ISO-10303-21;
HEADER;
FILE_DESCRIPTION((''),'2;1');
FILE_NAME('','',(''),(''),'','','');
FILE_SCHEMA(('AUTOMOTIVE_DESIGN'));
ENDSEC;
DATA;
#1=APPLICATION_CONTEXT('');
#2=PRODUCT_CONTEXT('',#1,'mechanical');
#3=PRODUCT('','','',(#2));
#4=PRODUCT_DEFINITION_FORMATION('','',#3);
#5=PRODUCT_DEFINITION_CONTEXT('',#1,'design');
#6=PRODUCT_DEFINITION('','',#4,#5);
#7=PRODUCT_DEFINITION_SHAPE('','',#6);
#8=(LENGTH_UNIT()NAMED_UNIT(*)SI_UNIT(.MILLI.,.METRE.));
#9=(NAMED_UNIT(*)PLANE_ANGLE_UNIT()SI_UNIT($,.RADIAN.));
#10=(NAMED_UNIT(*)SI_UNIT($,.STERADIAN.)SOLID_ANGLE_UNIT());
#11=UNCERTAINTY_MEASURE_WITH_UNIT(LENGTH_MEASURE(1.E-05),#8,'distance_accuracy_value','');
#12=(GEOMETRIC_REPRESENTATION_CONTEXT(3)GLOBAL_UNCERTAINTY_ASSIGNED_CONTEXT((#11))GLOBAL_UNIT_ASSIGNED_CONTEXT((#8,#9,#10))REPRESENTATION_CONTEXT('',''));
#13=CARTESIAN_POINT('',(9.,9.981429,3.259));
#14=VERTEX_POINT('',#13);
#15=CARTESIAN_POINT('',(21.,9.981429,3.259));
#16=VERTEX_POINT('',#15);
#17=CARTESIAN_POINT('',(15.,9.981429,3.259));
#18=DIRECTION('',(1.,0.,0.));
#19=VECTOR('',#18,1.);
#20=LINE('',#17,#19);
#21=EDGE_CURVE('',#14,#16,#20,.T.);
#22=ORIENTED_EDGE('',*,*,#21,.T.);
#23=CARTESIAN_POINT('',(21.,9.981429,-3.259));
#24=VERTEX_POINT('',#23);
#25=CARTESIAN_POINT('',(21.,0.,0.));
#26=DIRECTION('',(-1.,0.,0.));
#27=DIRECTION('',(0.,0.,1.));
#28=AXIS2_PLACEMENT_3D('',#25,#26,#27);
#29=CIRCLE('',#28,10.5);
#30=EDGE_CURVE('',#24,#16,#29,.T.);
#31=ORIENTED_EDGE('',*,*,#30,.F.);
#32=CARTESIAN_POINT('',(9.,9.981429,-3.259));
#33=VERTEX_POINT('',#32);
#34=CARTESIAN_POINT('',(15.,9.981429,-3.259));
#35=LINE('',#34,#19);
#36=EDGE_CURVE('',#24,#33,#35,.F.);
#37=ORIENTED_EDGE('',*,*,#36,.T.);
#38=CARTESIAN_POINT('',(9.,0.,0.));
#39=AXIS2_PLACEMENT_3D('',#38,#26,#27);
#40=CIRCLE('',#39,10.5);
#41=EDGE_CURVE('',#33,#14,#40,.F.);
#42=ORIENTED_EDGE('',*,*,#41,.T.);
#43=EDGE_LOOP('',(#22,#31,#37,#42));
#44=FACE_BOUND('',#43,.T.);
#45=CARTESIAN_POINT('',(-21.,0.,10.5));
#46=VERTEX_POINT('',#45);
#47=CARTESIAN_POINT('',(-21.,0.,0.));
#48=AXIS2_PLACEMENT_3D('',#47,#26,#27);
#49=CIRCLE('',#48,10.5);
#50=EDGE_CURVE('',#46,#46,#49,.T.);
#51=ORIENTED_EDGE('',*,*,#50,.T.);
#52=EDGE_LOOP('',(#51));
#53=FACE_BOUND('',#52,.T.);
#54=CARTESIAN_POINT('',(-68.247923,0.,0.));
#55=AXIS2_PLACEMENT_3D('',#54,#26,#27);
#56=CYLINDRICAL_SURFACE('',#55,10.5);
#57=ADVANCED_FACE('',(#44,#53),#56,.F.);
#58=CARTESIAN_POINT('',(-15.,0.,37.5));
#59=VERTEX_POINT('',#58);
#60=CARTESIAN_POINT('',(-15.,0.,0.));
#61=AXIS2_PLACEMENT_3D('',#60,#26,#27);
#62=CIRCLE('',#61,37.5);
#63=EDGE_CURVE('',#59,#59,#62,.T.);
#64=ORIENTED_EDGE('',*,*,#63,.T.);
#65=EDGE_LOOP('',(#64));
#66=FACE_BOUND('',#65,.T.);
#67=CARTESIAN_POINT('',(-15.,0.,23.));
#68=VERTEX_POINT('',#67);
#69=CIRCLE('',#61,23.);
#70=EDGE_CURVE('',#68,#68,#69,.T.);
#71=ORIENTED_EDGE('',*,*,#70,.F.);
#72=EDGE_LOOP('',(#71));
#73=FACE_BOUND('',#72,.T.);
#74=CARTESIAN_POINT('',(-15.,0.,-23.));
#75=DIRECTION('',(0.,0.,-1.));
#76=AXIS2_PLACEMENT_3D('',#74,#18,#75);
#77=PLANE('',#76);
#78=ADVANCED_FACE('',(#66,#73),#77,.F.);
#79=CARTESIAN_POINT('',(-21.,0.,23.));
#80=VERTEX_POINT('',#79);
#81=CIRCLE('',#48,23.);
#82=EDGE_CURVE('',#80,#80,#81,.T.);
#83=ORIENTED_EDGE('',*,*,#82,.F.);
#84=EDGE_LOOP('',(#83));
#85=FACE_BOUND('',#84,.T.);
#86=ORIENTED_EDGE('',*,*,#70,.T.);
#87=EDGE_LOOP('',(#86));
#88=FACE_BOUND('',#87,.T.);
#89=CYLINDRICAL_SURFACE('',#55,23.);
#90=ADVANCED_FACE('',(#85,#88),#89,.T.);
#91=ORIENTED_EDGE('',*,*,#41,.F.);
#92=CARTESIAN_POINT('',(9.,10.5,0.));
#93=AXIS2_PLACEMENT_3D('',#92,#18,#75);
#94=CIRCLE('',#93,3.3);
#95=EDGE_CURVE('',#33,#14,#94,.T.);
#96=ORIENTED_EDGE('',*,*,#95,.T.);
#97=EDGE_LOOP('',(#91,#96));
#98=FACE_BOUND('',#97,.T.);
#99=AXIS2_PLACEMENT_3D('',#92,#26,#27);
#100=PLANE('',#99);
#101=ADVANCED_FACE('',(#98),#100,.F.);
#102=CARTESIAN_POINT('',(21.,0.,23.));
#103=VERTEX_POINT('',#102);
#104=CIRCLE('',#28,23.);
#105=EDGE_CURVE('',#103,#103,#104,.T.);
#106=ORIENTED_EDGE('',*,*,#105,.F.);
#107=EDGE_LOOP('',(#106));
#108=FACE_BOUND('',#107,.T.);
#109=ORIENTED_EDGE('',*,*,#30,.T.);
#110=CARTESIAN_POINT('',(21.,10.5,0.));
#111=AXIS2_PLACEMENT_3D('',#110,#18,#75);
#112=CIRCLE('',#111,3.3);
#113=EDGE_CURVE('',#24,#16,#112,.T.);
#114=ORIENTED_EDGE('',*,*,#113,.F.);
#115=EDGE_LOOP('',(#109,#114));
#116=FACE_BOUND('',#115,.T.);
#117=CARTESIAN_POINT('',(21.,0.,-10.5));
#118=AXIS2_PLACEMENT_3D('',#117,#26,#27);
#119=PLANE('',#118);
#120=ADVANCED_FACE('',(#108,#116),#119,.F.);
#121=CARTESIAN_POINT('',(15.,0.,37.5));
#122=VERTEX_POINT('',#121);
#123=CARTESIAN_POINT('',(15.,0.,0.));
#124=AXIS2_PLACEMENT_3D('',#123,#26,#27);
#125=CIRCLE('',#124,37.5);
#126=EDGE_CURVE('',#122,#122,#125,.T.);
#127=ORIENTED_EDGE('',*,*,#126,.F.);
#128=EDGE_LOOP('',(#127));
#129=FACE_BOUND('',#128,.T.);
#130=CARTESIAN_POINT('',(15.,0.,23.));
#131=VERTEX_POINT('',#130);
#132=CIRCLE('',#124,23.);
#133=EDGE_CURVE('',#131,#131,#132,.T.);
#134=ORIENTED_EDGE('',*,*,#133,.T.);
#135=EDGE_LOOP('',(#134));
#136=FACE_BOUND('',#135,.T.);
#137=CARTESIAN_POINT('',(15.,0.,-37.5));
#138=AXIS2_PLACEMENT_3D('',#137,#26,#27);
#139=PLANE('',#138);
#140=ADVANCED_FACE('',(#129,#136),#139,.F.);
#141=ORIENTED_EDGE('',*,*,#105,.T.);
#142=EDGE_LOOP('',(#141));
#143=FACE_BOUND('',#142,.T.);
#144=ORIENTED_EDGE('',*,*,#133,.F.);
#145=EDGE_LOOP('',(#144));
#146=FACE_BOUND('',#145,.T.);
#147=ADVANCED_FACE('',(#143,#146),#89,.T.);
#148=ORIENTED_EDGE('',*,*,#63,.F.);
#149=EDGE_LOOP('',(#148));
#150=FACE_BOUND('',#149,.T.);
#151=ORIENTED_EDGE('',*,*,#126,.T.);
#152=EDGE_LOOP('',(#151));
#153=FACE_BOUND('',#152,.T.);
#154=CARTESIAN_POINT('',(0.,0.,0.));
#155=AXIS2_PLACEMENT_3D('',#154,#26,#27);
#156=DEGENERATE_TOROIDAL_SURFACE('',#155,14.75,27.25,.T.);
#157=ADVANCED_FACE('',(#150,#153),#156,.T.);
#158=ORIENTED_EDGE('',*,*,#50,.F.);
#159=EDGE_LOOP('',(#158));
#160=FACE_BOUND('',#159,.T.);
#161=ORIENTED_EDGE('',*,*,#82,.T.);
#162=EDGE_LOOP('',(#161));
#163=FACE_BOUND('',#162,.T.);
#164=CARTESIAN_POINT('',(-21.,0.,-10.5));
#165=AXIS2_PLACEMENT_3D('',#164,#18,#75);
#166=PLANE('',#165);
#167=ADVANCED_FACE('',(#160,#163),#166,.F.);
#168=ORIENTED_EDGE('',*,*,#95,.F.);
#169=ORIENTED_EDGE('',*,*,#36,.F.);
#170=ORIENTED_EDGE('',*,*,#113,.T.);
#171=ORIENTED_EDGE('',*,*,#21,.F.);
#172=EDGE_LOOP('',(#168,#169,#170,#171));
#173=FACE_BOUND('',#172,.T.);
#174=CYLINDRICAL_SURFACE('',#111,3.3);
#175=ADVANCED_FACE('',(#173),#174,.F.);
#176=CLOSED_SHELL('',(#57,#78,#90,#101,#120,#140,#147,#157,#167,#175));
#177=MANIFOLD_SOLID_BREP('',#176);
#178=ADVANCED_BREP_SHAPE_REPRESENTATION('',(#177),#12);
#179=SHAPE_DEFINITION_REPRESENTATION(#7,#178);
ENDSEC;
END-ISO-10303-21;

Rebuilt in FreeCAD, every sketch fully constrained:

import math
import FreeCAD as App
import Part
import Sketcher

V = App.Vector

doc = App.newDocument("Part")
body = doc.addObject("PartDesign::Body", "Body")

# Sketch on XZ plane
sketch1 = body.newObject("Sketcher::SketchObject", "Sketch")
sketch1.AttachmentSupport = (doc.getObject("XZ_Plane"), [""])
sketch1.MapMode = "FlatFace"
sketch1.addGeometry([
    Part.LineSegment(V(-21, -10.5, 0), V(21, -10.5, 0)),  # 0
    Part.LineSegment(V(21, -10.5, 0), V(21, -23, 0)),  # 1
    Part.LineSegment(V(21, -23, 0), V(15, -23, 0)),  # 2
    Part.LineSegment(V(15, -23, 0), V(15, -37.5, 0)),  # 3
    Part.ArcOfCircle(Part.Circle(V(0, -14.75, 0), V(0, 0, 1), 27.25), math.radians(-123.398488), math.radians(-56.601512)),  # 4
    Part.LineSegment(V(-15, -37.5, 0), V(-15, -23, 0)),  # 5
    Part.LineSegment(V(-15, -23, 0), V(-21, -23, 0)),  # 6
    Part.LineSegment(V(-21, -23, 0), V(-21, -10.5, 0)),  # 7
], False)
sketch1.addConstraint([
    Sketcher.Constraint("Coincident", 0, 2, 1, 1),
    Sketcher.Constraint("Coincident", 1, 2, 2, 1),
    Sketcher.Constraint("Coincident", 2, 2, 3, 1),
    Sketcher.Constraint("Coincident", 3, 2, 4, 2),
    Sketcher.Constraint("Coincident", 4, 1, 5, 1),
    Sketcher.Constraint("Coincident", 5, 2, 6, 1),
    Sketcher.Constraint("Coincident", 6, 2, 7, 1),
    Sketcher.Constraint("Coincident", 7, 2, 0, 1),
    Sketcher.Constraint("Horizontal", 0),
    Sketcher.Constraint("Vertical", 1),
    Sketcher.Constraint("Horizontal", 2),
    Sketcher.Constraint("Vertical", 3),
    Sketcher.Constraint("Vertical", 5),
    Sketcher.Constraint("Horizontal", 6),
    Sketcher.Constraint("Vertical", 7),
    Sketcher.Constraint("Symmetric", 3, 2, 4, 1, -2),
    Sketcher.Constraint("Symmetric", 1, 2, 6, 2, -2),
    Sketcher.Constraint("DistanceX", 0, 1, 0, 2, 42.0),
    Sketcher.Constraint("DistanceX", 2, 2, 2, 1, 6.0),
    Sketcher.Constraint("Radius", 4, 27.25),
    Sketcher.Constraint("DistanceY", 1, 2, 1, 1, 12.5),
    Sketcher.Constraint("DistanceY", 3, 2, 3, 1, 14.5),
    Sketcher.Constraint("DistanceY", 1, 2, -1, 1, 23.0),
])
revolution = body.newObject("PartDesign::Revolution", "Revolution")
revolution.Profile = sketch1
revolution.ReferenceAxis = (sketch1, ["H_Axis"])
revolution.Angle = 360

# Sketch on YZ plane
sketch2 = body.newObject("Sketcher::SketchObject", "Sketch001")
sketch2.AttachmentSupport = (doc.getObject("YZ_Plane"), [""])
sketch2.MapMode = "FlatFace"
sketch2.AttachmentOffset = App.Placement(V(0, 0, 21), App.Rotation())
sketch2.addGeometry(Part.Circle(V(10.5, 0, 0), V(0, 0, 1), 3.3), False)
sketch2.addConstraint([
    Sketcher.Constraint("PointOnObject", 0, 3, -1),
    Sketcher.Constraint("Diameter", 0, 6.6),
    Sketcher.Constraint("DistanceX", -1, 1, 0, 3, 10.5),
])
doc.recompute()
hole = body.newObject("PartDesign::Hole", "Hole")
hole.Profile = sketch2
hole.ThreadType = "None"
hole.Diameter = 6.6
hole.DepthType = "Dimension"
hole.Depth = 12
hole.DrillPoint = "Flat"

doc.recompute()
